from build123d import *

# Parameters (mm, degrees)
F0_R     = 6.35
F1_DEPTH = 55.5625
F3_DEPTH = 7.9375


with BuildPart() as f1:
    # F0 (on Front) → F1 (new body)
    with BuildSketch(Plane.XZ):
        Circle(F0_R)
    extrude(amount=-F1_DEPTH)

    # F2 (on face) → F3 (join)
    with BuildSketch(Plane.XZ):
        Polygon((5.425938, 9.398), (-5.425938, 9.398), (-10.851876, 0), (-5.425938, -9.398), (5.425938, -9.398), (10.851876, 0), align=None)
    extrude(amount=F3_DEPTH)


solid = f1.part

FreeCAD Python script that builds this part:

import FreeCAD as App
import Part
import Sketcher

V = App.Vector
Q = App.Units.Quantity


def add_polygon(sketch, points):
    """Adds a closed chain of lines whose ends are joined by coincident constraints."""
    first, n = sketch.GeometryCount, len(points)
    for a, b in zip(points, points[1:] + points[:1]):
        sketch.addGeometry(Part.LineSegment(App.Vector(*a, 0), App.Vector(*b, 0)), False)
    for i in range(n):
        sketch.addConstraint(Sketcher.Constraint("Coincident", first + i, 2, first + (i + 1) % n, 1))

doc = App.newDocument("Part")
body = doc.addObject("PartDesign::Body", "Body")

# Sketch on XZ plane
sketch1 = body.newObject("Sketcher::SketchObject", "Sketch")
sketch1.AttachmentSupport = (doc.getObject("XZ_Plane"), [""])
sketch1.MapMode = "FlatFace"
sketch1.addGeometry(Part.Circle(V(0, 0, 0), V(0, 0, 1), 6), False)
sketch1.addConstraint([
    Sketcher.Constraint("Coincident", 0, 3, -1, 1),
    Sketcher.Constraint("Diameter", 0, Q("0.5 in")),
])
pad1 = body.newObject("PartDesign::Pad", "Pad")
pad1.Profile = sketch1
pad1.Length = Q("2.1875 in")
pad1.Reversed = True

# Sketch on XZ plane
sketch2 = body.newObject("Sketcher::SketchObject", "Sketch001")
sketch2.AttachmentSupport = (doc.getObject("XZ_Plane"), [""])
sketch2.MapMode = "FlatFace"
add_polygon(sketch2, [(5, 9), (-5, 9), (-11, 0), (-5, -9), (5, -9), (11, 0)])  # lines 0-5
sketch2.addConstraint([
    Sketcher.Constraint("Horizontal", 0),
    Sketcher.Constraint("Horizontal", 3),
    Sketcher.Constraint("Symmetric", 0, 2, 3, 2, -1, 1),
    Sketcher.Constraint("Symmetric", 1, 2, 4, 2, -1, 1),
    Sketcher.Constraint("PointOnObject", 1, 2, -1),
    Sketcher.Constraint("Parallel", 2, 5),
    Sketcher.Constraint("Vertical", 0, 2, 2, 2),
    Sketcher.Constraint("Angle", 1, Q("-120.000001 deg")),
    Sketcher.Constraint("DistanceY", -1, 1, 0, 2, Q("0.37 in")),
    Sketcher.Constraint("DistanceX", 0, 2, 0, 1, 10.851876),
])
pad2 = body.newObject("PartDesign::Pad", "Pad001")
pad2.Profile = sketch2
pad2.Length = Q("0.3125 in")

doc.recompute()
